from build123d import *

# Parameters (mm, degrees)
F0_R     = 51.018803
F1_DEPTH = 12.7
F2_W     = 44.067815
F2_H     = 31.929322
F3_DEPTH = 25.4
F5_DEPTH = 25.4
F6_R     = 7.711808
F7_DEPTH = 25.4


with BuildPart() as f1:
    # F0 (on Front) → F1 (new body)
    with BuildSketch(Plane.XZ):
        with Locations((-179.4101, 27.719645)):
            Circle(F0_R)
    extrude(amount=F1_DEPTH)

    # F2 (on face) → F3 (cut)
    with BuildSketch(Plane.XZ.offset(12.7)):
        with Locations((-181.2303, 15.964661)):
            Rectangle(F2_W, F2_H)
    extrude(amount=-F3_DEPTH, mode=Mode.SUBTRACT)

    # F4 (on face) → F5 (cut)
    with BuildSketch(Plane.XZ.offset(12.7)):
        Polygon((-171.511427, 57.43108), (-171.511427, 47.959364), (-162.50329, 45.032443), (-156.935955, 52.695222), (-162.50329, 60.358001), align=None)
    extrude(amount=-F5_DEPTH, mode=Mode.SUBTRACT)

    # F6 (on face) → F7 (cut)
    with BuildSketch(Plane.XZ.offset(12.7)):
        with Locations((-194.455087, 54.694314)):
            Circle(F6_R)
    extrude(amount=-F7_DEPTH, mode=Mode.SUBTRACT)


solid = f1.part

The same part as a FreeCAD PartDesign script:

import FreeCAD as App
import Part
import Sketcher

V = App.Vector
Q = App.Units.Quantity


def add_polygon(sketch, points):
    """Adds a closed chain of lines whose ends are joined by coincident constraints."""
    first, n = sketch.GeometryCount, len(points)
    for a, b in zip(points, points[1:] + points[:1]):
        sketch.addGeometry(Part.LineSegment(App.Vector(*a, 0), App.Vector(*b, 0)), False)
    for i in range(n):
        sketch.addConstraint(Sketcher.Constraint("Coincident", first + i, 2, first + (i + 1) % n, 1))

doc = App.newDocument("Part")
body = doc.addObject("PartDesign::Body", "Body")

# Sketch on XZ plane
sketch1 = body.newObject("Sketcher::SketchObject", "Sketch")
sketch1.AttachmentSupport = (doc.getObject("XZ_Plane"), [""])
sketch1.MapMode = "FlatFace"
sketch1.addGeometry(Part.Circle(V(-179, 28, 0), V(0, 0, 1), 51), False)
sketch1.addConstraint([
    Sketcher.Constraint("Diameter", 0, Q("102.037606 mm")),
    Sketcher.Constraint("DistanceX", 0, 3, -1, 1, Q("179.4101 mm")),
    Sketcher.Constraint("DistanceY", -1, 1, 0, 3, Q("27.719645 mm")),
])
pad1 = body.newObject("PartDesign::Pad", "Pad")
pad1.Profile = sketch1
pad1.Length = Q("0.5 in")

# Sketch on XZ plane
sketch2 = body.newObject("Sketcher::SketchObject", "Sketch001")
sketch2.AttachmentSupport = (doc.getObject("XZ_Plane"), [""])
sketch2.MapMode = "FlatFace"
sketch2.AttachmentOffset = App.Placement(V(0, 0, 0.5 * 25.4), App.Rotation())
add_polygon(sketch2, [(-203, 32), (-203, 0), (-159, 0), (-159, 32)])  # lines 0-3
sketch2.addConstraint([
    Sketcher.Constraint("Vertical", 0),
    Sketcher.Constraint("Horizontal", 1),
    Sketcher.Constraint("Vertical", 2),
    Sketcher.Constraint("Horizontal", 3),
    Sketcher.Constraint("PointOnObject", 0, 2, -1),
    Sketcher.Constraint("DistanceY", 0, 2, 0, 1, Q("31.929322 mm")),
    Sketcher.Constraint("DistanceX", 1, 1, 1, 2, Q("44.067815 mm")),
    Sketcher.Constraint("DistanceX", 0, 2, -1, 1, Q("203.264207 mm")),
])
pocket1 = body.newObject("PartDesign::Pocket", "Pocket")
pocket1.Profile = sketch2
pocket1.Length = Q("1 in")

# Sketch on XZ plane
sketch3 = body.newObject("Sketcher::SketchObject", "Sketch002")
sketch3.AttachmentSupport = (doc.getObject("XZ_Plane"), [""])
sketch3.MapMode = "FlatFace"
sketch3.AttachmentOffset = App.Placement(V(0, 0, 0.5 * 25.4), App.Rotation())
add_polygon(sketch3, [(-172, 57), (-172, 48), (-163, 45), (-157, 53), (-163, 60)])  # lines 0-4
sketch3.addConstraint([
    Sketcher.Constraint("Vertical", 0),
    Sketcher.Constraint("Vertical", 1, 2, 3, 2),
    Sketcher.Constraint("Equal", 1, 2),
    Sketcher.Constraint("Equal", 2, 3),
    Sketcher.Constraint("Equal", 3, 4),
    Sketcher.Constraint("Angle", 1, Q("-17.999999 deg")),
    Sketcher.Constraint("Angle", 2, Q("53.999999 deg")),
    Sketcher.Constraint("DistanceY", -1, 1, 3, 2, Q("60.358001 mm")),
    Sketcher.Constraint("DistanceY", 0, 2, 0, 1, Q("9.471716 mm")),
    Sketcher.Constraint("DistanceX", 1, 2, -1, 1, Q("162.50329 mm")),
])
pocket2 = body.newObject("PartDesign::Pocket", "Pocket001")
pocket2.Profile = sketch3
pocket2.Length = Q("1 in")

# Sketch on XZ plane
sketch4 = body.newObject("Sketcher::SketchObject", "Sketch003")
sketch4.AttachmentSupport = (doc.getObject("XZ_Plane"), [""])
sketch4.MapMode = "FlatFace"
sketch4.AttachmentOffset = App.Placement(V(0, 0, 0.5 * 25.4), App.Rotation())
sketch4.addGeometry(Part.Circle(V(-194, 55, 0), V(0, 0, 1), 8), False)
sketch4.addConstraint([
    Sketcher.Constraint("Diameter", 0, Q("15.423616 mm")),
    Sketcher.Constraint("DistanceX", 0, 3, -1, 1, Q("194.455087 mm")),
    Sketcher.Constraint("DistanceY", -1, 1, 0, 3, Q("54.694314 mm")),
])
pocket3 = body.newObject("PartDesign::Pocket", "Pocket002")
pocket3.Profile = sketch4
pocket3.Length = Q("1 in")

doc.recompute()
